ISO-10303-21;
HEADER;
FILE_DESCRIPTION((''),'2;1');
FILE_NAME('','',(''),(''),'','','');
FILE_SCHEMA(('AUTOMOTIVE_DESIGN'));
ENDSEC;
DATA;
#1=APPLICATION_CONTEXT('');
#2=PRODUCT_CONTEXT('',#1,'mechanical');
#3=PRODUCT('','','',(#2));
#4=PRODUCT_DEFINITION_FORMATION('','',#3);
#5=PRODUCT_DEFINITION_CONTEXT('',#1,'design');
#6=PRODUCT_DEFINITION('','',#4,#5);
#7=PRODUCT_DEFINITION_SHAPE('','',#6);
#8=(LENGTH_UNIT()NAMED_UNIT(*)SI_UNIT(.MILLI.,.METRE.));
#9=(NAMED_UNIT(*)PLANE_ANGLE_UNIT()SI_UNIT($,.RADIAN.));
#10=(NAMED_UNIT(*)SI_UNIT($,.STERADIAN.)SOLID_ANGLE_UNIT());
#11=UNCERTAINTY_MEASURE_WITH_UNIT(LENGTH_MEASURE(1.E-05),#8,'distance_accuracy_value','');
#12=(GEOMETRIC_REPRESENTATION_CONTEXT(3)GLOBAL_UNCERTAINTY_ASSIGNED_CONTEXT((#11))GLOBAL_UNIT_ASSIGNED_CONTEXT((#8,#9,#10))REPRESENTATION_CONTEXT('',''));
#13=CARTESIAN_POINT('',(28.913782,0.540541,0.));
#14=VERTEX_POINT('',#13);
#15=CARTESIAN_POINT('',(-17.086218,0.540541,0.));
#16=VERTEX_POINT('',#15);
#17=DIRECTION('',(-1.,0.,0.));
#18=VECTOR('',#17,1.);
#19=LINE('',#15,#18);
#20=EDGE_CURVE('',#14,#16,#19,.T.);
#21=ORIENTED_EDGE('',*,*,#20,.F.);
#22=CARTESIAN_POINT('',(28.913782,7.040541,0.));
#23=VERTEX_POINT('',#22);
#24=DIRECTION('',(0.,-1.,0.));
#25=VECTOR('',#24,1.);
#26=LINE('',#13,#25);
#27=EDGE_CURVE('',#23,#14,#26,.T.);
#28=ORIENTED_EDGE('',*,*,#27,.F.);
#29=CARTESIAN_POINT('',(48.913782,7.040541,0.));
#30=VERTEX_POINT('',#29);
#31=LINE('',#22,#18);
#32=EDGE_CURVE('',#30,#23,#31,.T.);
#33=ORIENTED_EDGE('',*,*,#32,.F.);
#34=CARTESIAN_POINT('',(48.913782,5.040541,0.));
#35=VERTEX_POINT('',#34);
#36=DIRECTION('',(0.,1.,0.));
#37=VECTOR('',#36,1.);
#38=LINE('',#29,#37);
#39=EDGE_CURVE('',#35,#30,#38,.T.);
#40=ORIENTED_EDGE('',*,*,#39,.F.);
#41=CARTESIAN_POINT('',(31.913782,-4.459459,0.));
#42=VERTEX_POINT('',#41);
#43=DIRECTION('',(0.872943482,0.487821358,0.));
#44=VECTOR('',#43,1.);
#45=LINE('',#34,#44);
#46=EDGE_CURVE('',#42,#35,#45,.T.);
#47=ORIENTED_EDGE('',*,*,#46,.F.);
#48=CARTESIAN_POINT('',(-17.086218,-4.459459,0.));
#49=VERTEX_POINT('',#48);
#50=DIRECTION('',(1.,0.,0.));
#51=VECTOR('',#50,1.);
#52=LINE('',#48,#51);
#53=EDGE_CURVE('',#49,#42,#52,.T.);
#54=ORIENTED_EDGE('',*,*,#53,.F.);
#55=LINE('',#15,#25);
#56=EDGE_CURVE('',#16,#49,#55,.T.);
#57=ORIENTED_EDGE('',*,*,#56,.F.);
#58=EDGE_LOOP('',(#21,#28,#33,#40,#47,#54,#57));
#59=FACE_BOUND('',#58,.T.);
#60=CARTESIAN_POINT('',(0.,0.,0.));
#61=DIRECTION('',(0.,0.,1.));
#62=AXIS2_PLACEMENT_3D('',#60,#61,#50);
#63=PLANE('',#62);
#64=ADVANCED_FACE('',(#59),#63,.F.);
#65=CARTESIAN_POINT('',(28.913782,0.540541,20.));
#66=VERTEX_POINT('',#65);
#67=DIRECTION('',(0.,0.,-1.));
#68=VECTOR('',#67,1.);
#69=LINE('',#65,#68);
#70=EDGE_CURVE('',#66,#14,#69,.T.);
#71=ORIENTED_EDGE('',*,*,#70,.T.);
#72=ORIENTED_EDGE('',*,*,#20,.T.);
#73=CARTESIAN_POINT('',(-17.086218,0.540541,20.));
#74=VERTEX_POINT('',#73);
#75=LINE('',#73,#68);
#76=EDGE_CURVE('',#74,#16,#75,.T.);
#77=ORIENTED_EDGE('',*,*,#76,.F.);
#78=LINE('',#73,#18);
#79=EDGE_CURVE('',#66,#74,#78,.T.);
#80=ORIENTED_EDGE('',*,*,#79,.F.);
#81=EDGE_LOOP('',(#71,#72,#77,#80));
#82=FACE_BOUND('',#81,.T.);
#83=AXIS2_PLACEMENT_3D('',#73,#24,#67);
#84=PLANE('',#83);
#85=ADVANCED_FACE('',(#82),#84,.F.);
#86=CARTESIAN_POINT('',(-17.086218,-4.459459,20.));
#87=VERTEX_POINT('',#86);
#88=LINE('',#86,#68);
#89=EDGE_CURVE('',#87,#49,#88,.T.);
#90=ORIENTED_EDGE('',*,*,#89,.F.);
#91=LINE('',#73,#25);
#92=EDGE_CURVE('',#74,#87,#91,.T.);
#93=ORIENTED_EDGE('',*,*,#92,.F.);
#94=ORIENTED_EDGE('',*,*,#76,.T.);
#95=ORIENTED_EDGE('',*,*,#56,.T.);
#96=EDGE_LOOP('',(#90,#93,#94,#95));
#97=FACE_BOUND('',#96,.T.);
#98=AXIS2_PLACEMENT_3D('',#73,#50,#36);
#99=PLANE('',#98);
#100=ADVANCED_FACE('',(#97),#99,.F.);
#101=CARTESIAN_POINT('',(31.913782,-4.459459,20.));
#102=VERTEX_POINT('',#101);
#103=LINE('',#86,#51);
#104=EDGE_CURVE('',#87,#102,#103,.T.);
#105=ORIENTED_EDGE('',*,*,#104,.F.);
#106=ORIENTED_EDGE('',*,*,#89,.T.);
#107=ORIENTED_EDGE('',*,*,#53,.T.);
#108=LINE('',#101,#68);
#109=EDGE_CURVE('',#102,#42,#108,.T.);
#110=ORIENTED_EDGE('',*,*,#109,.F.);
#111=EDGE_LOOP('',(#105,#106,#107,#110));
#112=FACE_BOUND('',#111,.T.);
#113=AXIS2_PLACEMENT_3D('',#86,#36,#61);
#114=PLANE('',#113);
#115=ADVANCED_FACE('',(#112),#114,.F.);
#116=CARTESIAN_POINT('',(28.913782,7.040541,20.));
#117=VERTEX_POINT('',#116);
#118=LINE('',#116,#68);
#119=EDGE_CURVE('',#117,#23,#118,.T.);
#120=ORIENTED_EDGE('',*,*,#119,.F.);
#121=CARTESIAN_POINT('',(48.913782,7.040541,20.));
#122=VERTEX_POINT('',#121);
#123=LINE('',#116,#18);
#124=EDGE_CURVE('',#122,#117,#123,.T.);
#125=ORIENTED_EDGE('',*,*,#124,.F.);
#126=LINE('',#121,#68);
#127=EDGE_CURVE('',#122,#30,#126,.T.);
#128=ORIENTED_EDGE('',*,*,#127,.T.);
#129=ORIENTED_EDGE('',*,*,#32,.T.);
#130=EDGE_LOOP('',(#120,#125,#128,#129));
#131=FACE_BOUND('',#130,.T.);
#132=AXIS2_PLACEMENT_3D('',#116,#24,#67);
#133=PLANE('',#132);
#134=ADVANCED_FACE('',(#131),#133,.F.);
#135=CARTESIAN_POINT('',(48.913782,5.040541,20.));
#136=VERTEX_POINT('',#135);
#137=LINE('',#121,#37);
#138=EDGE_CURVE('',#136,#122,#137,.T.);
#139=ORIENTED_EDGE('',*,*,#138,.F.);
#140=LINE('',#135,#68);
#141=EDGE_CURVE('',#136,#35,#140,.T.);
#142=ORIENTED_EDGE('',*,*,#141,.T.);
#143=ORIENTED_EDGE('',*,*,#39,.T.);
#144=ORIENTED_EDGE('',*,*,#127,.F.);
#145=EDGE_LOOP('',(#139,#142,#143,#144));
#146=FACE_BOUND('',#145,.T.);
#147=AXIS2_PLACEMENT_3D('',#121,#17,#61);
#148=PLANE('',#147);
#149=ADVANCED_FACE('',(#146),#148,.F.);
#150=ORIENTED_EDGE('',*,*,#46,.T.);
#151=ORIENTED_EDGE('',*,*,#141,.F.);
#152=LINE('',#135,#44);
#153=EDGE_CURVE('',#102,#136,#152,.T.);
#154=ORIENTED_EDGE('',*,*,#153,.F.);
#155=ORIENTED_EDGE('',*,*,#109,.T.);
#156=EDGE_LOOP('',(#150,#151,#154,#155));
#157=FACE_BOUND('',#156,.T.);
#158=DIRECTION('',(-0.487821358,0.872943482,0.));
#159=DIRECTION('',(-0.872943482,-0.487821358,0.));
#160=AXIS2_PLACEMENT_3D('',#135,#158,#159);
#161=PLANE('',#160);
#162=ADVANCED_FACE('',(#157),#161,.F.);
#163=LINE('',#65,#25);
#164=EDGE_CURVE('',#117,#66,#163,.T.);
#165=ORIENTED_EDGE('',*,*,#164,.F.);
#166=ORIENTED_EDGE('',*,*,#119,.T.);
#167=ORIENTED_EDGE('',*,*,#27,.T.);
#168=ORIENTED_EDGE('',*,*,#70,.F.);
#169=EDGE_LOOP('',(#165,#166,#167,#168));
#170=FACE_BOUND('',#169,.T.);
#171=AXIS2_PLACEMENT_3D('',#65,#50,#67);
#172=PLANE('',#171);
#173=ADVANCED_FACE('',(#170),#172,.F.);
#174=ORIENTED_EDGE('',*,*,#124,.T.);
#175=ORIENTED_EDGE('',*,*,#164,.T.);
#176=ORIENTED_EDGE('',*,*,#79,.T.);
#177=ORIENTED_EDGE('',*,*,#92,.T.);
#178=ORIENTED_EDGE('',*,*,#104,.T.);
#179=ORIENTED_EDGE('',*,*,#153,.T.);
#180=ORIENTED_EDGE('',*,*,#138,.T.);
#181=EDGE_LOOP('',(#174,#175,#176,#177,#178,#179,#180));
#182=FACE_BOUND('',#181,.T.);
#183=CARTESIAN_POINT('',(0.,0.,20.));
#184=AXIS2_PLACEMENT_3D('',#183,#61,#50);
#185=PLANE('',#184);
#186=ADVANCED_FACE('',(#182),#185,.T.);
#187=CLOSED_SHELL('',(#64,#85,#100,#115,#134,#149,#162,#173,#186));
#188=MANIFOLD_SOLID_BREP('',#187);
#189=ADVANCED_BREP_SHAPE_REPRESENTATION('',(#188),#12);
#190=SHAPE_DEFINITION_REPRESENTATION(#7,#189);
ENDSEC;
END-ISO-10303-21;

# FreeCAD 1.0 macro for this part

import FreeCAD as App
import Part
import Sketcher
from FreeCAD import Vector

doc = App.newDocument("Part")
body = doc.addObject("PartDesign::Body", "Body")

sketch1 = doc.addObject("Sketcher::SketchObject", "Sketch")
body.addObject(sketch1)
sketch1.AttachmentSupport = (doc.XY_Plane, [""])
sketch1.MapMode = "FlatFace"
sketch1.addGeometry([
    Part.LineSegment(Vector(28.9, 0.5, 0), Vector(-17.1, 0.5, 0)),
    Part.LineSegment(Vector(-17.1, 0.5, 0), Vector(-17.1, -4.5, 0)),
    Part.LineSegment(Vector(-17.1, -4.5, 0), Vector(31.9, -4.5, 0)),
    Part.LineSegment(Vector(31.9, -4.5, 0), Vector(48.9, 5, 0)),
    Part.LineSegment(Vector(48.9, 5, 0), Vector(48.9, 7, 0)),
    Part.LineSegment(Vector(48.9, 7, 0), Vector(28.9, 7, 0)),
    Part.LineSegment(Vector(28.9, 7, 0), Vector(28.9, 0.5, 0)),
], False)
sketch1.addConstraint([
    Sketcher.Constraint("Coincident", 0, 2, 1, 1),
    Sketcher.Constraint("Coincident", 1, 2, 2, 1),
    Sketcher.Constraint("Coincident", 2, 2, 3, 1),
    Sketcher.Constraint("Coincident", 3, 2, 4, 1),
    Sketcher.Constraint("Coincident", 4, 2, 5, 1),
    Sketcher.Constraint("Coincident", 5, 2, 6, 1),
    Sketcher.Constraint("Coincident", 6, 2, 0, 1),
    Sketcher.Constraint("Horizontal", 0),
    Sketcher.Constraint("Vertical", 1),
    Sketcher.Constraint("Horizontal", 2),
    Sketcher.Constraint("Vertical", 4),
    Sketcher.Constraint("Horizontal", 5),
    Sketcher.Constraint("Vertical", 6),
    Sketcher.Constraint("DistanceX", 0, 2, 0, 1, 46.0),
    Sketcher.Constraint("DistanceX", 2, 1, 2, 2, 49.0),
    Sketcher.Constraint("DistanceX", 5, 2, 5, 1, 20.0),
    Sketcher.Constraint("DistanceY", 1, 2, 1, 1, 5.0),
    Sketcher.Constraint("DistanceY", 4, 1, 4, 2, 2.0),
    Sketcher.Constraint("DistanceY", 6, 2, 6, 1, 6.5),
    Sketcher.Constraint("DistanceY", -1, 1, 0, 2, 0.540541),
    Sketcher.Constraint("DistanceX", 0, 2, -1, 1, 17.086218),
])
pad1 = doc.addObject("PartDesign::Pad", "Pad")
body.addObject(pad1)
pad1.Profile = sketch1
pad1.Length = 20

doc.recompute()
